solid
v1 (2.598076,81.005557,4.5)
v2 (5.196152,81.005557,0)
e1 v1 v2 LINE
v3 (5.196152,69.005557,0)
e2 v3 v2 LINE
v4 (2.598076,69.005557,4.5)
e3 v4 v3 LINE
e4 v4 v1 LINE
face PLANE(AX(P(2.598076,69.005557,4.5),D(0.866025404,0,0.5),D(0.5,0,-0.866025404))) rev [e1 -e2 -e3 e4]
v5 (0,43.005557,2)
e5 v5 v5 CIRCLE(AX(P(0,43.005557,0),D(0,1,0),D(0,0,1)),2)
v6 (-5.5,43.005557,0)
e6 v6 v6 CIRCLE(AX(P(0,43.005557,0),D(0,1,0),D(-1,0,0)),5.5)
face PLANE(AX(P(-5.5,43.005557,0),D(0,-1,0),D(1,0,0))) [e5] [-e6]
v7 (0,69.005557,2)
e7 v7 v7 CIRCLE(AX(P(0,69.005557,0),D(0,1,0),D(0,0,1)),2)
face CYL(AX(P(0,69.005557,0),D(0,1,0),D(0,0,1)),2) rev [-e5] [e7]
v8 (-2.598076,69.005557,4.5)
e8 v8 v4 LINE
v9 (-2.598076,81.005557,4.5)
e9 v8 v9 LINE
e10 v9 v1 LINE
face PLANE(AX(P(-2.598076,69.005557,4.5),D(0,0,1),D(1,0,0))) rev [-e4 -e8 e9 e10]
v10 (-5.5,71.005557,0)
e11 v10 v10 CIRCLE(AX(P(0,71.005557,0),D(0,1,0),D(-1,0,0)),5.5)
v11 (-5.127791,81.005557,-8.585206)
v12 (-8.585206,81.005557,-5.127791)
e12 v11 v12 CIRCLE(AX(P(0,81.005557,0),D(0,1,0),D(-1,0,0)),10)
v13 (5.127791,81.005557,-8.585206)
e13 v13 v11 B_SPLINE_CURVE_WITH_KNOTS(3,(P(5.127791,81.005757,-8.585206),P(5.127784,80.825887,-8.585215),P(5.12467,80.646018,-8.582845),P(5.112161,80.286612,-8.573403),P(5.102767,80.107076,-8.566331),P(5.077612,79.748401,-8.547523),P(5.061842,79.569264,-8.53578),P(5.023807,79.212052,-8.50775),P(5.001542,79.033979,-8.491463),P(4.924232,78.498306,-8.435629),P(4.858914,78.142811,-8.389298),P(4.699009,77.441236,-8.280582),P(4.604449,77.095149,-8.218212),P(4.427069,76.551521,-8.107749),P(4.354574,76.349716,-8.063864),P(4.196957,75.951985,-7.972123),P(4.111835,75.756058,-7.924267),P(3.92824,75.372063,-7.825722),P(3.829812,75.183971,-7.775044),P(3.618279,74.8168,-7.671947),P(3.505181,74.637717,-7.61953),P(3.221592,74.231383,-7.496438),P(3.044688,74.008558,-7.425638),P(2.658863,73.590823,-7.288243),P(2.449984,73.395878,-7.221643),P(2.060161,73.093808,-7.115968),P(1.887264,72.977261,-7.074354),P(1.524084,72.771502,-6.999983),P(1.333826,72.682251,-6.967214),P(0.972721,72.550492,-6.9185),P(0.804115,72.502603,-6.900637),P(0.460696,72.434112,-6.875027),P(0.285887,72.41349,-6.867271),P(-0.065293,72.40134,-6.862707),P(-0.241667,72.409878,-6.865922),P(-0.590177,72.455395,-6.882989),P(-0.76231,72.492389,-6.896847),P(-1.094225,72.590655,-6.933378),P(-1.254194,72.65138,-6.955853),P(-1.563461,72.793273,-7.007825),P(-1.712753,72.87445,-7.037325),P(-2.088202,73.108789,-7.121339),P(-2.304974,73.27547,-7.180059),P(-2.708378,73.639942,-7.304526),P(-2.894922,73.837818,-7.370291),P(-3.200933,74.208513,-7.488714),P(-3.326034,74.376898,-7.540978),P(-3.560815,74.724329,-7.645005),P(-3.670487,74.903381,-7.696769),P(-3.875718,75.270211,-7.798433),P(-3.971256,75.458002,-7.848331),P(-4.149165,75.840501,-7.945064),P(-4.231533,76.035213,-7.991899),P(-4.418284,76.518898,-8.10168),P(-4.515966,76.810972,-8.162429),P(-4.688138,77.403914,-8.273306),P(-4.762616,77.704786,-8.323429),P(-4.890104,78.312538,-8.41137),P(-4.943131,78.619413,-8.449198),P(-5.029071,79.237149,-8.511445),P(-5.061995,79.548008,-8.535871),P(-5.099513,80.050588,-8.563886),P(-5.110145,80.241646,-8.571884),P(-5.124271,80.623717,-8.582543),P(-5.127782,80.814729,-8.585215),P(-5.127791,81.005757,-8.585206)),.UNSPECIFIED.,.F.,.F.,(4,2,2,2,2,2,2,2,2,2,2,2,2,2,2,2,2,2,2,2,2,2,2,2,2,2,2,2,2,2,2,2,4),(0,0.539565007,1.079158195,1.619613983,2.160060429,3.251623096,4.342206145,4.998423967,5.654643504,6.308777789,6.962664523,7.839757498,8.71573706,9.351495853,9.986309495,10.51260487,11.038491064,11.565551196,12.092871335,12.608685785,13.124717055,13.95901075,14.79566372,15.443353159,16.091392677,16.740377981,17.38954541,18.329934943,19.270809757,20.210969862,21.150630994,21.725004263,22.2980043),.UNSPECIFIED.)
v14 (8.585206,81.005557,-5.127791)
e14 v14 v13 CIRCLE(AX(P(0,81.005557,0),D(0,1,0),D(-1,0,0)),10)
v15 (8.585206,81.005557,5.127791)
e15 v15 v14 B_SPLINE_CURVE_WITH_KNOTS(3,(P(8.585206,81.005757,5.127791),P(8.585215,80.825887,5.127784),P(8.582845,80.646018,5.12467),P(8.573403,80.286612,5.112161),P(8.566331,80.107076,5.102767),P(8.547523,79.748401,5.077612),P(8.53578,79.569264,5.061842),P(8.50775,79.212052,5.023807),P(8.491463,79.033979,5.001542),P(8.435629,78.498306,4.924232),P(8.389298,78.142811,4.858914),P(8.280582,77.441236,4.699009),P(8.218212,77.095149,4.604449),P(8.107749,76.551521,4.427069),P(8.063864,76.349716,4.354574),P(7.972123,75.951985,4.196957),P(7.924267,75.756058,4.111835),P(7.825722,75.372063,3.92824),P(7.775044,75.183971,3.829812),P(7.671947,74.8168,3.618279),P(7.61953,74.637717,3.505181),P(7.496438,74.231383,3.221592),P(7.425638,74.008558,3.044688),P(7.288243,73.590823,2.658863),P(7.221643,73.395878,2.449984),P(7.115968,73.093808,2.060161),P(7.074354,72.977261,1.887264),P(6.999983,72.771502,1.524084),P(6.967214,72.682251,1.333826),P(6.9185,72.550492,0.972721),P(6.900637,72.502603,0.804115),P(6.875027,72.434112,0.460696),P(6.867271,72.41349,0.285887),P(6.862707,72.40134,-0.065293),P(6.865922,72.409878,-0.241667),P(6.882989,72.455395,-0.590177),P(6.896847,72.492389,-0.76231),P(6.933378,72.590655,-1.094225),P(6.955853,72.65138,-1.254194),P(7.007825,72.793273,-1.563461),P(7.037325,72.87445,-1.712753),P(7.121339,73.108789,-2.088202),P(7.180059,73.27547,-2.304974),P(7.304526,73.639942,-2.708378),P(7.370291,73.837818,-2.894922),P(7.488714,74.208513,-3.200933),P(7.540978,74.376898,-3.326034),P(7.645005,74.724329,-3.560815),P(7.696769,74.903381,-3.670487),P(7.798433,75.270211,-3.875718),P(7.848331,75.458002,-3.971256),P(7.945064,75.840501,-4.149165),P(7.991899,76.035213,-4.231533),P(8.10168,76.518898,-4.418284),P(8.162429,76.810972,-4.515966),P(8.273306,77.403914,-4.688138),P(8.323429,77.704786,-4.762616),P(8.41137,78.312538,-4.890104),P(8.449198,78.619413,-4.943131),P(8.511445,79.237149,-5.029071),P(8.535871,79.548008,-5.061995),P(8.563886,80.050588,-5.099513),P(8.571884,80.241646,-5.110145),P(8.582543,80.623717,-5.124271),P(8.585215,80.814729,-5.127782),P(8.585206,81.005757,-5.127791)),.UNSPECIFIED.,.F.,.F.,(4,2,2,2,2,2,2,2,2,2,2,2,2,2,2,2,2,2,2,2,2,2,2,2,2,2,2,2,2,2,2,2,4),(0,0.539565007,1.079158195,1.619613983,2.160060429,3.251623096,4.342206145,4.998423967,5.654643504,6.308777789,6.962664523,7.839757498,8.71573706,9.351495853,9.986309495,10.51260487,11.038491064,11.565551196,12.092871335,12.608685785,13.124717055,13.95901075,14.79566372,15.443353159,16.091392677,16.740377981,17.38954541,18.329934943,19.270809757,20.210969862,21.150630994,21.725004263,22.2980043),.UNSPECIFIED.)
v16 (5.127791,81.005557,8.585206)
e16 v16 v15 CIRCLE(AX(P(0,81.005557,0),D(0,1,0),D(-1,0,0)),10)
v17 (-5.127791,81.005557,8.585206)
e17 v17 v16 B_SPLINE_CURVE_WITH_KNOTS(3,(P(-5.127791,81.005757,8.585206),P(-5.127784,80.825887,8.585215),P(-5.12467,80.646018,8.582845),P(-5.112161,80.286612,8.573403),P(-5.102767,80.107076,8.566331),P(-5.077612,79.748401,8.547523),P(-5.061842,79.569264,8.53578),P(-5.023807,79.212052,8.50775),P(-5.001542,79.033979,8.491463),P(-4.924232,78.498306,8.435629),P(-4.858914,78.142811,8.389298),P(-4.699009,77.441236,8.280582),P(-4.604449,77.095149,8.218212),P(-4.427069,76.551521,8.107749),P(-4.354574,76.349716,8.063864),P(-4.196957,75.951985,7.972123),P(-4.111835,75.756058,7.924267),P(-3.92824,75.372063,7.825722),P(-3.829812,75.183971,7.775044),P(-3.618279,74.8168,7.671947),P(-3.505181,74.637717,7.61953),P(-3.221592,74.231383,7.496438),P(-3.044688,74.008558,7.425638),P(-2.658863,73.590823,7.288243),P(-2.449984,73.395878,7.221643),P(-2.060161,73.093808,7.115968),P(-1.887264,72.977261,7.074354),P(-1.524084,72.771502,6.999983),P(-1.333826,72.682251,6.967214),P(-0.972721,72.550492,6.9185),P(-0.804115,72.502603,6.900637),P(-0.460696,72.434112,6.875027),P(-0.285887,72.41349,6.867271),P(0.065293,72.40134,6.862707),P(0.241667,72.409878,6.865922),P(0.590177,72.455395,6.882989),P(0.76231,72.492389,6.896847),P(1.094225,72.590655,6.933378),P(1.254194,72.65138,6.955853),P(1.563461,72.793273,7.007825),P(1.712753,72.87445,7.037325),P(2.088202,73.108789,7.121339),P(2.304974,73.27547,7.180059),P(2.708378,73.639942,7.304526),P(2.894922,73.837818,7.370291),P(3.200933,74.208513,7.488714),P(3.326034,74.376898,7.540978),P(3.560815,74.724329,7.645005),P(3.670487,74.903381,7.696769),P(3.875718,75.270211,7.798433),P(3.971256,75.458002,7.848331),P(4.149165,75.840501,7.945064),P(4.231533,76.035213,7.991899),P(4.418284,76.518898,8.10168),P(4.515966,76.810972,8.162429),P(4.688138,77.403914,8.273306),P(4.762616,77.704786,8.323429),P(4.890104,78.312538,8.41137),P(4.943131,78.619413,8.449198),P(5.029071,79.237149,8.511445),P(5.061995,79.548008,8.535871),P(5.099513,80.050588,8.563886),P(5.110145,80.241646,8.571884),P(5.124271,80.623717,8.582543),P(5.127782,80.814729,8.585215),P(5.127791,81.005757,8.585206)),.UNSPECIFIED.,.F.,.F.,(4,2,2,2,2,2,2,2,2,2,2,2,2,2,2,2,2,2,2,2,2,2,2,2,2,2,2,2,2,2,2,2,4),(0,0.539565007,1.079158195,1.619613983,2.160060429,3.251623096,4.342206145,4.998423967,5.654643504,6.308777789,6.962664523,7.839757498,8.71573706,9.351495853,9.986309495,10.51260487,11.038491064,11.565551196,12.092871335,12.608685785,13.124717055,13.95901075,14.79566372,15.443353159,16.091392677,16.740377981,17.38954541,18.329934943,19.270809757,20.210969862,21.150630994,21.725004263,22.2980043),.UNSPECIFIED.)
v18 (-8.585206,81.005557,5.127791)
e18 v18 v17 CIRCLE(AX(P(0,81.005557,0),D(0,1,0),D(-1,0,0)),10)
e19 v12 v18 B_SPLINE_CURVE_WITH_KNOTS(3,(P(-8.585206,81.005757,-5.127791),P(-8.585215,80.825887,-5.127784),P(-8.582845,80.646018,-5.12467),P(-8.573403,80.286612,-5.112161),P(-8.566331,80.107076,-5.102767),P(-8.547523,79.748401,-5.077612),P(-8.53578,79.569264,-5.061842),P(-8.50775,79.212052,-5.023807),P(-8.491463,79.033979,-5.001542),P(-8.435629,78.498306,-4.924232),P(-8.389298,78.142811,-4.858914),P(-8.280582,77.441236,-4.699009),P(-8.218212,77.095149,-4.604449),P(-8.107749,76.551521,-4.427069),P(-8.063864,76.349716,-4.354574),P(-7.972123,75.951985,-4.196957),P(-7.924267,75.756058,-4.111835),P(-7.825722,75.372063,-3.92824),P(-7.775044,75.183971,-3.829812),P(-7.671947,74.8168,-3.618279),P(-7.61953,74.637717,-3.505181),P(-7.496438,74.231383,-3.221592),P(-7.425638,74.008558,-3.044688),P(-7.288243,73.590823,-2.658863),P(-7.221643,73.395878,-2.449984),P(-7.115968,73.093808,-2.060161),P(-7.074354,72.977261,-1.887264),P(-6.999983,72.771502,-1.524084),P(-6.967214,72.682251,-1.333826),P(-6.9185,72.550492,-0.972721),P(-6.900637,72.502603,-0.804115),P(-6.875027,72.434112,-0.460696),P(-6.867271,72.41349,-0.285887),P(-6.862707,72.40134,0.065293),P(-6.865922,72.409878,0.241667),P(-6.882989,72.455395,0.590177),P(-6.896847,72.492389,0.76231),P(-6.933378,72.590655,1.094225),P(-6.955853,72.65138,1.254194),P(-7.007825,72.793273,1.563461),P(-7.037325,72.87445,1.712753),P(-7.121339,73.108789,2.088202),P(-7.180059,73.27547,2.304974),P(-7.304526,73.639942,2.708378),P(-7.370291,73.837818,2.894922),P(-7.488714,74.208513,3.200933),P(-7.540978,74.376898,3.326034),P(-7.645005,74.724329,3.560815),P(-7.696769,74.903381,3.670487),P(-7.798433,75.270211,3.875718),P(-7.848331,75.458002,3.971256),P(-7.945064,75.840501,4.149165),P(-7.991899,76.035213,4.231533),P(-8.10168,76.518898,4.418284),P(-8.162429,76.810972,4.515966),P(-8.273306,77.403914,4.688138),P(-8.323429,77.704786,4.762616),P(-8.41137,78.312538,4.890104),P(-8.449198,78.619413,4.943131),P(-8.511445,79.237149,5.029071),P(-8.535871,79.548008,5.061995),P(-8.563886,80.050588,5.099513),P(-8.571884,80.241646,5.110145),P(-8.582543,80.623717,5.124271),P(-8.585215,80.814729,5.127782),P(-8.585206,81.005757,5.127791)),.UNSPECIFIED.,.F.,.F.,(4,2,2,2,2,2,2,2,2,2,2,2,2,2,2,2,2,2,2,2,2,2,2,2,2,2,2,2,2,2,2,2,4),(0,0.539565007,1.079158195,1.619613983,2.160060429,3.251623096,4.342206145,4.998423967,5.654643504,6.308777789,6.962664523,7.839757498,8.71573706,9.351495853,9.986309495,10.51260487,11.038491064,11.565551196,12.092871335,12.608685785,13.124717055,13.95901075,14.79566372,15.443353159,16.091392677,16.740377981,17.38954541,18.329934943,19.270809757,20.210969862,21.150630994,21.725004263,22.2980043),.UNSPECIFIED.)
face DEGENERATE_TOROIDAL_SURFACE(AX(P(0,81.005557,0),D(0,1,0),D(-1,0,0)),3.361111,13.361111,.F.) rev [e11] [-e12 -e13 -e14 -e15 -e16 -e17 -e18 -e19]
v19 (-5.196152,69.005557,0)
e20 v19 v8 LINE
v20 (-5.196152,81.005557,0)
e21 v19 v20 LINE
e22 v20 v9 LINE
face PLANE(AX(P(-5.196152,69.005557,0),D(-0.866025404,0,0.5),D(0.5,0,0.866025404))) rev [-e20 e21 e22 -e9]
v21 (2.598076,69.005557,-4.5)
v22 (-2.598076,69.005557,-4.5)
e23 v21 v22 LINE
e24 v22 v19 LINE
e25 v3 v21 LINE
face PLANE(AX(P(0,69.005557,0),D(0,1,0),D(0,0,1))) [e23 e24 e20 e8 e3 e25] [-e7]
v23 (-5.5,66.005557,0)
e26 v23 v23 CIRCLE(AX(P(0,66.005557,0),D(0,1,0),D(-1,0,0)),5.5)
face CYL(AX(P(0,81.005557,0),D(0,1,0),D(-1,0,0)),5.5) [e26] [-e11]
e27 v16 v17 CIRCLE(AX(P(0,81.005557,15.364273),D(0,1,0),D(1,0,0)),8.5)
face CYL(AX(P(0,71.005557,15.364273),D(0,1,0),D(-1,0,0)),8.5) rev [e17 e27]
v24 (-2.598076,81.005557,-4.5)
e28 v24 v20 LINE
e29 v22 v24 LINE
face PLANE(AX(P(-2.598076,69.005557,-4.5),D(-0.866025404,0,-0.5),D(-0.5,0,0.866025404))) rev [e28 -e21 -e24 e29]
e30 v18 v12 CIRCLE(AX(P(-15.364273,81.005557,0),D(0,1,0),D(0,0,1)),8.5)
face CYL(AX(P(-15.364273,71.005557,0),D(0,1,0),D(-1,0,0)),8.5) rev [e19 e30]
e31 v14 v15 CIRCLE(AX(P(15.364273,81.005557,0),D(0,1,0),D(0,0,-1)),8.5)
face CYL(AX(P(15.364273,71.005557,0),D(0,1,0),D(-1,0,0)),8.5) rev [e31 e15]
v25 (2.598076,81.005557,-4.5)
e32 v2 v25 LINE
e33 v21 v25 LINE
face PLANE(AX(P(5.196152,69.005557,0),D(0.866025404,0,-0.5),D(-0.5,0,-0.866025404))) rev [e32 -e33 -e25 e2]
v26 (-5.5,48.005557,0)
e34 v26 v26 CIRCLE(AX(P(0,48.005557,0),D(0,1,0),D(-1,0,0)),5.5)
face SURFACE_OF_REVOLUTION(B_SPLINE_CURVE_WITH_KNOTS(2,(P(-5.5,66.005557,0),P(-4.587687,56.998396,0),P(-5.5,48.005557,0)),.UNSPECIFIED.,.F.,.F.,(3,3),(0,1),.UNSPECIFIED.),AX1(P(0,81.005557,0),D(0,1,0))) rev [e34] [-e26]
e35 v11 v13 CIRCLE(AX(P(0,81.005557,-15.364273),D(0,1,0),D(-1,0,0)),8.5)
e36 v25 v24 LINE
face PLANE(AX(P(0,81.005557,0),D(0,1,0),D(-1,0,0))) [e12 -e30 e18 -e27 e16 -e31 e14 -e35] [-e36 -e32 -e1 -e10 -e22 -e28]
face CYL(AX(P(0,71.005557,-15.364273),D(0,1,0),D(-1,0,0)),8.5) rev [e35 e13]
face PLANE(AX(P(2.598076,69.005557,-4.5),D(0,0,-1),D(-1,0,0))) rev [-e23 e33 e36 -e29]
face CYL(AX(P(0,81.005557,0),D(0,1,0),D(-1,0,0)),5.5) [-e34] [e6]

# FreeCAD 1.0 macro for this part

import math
import FreeCAD as App
import Part
import Sketcher
from FreeCAD import Vector
Q = App.Units.Quantity


def add_polygon(sketch, points):
    """Adds a closed chain of lines whose ends are joined by coincident constraints."""
    first, n = sketch.GeometryCount, len(points)
    for a, b in zip(points, points[1:] + points[:1]):
        sketch.addGeometry(Part.LineSegment(App.Vector(*a, 0), App.Vector(*b, 0)), False)
    for i in range(n):
        sketch.addConstraint(Sketcher.Constraint("Coincident", first + i, 2, first + (i + 1) % n, 1))

doc = App.newDocument("Part")
body = doc.addObject("PartDesign::Body", "Body")

# Sketch on XY plane
sketch1 = body.newObject("Sketcher::SketchObject", "Sketch")
sketch1.AttachmentSupport = (doc.getObject("XY_Plane"), [""])
sketch1.MapMode = "FlatFace"
sketch1.addGeometry([
    Part.LineSegment(Vector(0, 81.005557, 0), Vector(-10, 81.005557, 0)),  # 0
    Part.ArcOfCircle(Part.Circle(Vector(3.361111, 81.005557, 0), Vector(0, 0, 1), 13.361111), math.radians(180), math.radians(228.455491)),  # 1
    Part.LineSegment(Vector(-5.5, 71.005557, 0), Vector(-5.5, 66.005557, 0)),  # 2
    Part.BSplineCurve([Vector(-5.5, 66.005557, 0), Vector(-4.587687, 56.998396, 0), Vector(-5.5, 48.005557, 0)], [3, 3], [0, 1], False, 2, [1, 1, 1], False),  # 3
    Part.LineSegment(Vector(-5.5, 48.005557, 0), Vector(-5.5, 43.005557, 0)),  # 4
    Part.LineSegment(Vector(-5.5, 43.005557, 0), Vector(0, 43.005557, 0)),  # 5
    Part.LineSegment(Vector(0, 43.005557, 0), Vector(0, 81.005557, 0)),  # 6
], False)
sketch1.addConstraint([
    Sketcher.Constraint("Block", 3),
    Sketcher.Constraint("Coincident", 0, 2, 1, 1),
    Sketcher.Constraint("Coincident", 1, 2, 2, 1),
    Sketcher.Constraint("Coincident", 2, 2, 3, 1),
    Sketcher.Constraint("Coincident", 3, 2, 4, 1),
    Sketcher.Constraint("Coincident", 4, 2, 5, 1),
    Sketcher.Constraint("Coincident", 5, 2, 6, 1),
    Sketcher.Constraint("Coincident", 6, 2, 0, 1),
    Sketcher.Constraint("Horizontal", 0),
    Sketcher.Constraint("Vertical", 2),
    Sketcher.Constraint("Vertical", 4),
    Sketcher.Constraint("Horizontal", 5),
    Sketcher.Constraint("Vertical", 6),
    Sketcher.Constraint("PointOnObject", 5, 2, -2),
    Sketcher.Constraint("Horizontal", 1, 3, 0, 2),
    Sketcher.Constraint("Equal", 2, 4),
    Sketcher.Constraint("DistanceX", 0, 2, 0, 1, 10.0),
    Sketcher.Constraint("DistanceY", 2, 2, 2, 1, 5.0),
    Sketcher.Constraint("DistanceY", 6, 1, 6, 2, 38.0),
])
revolution = body.newObject("PartDesign::Revolution", "Revolution")
revolution.Profile = sketch1
revolution.ReferenceAxis = (sketch1, ["V_Axis"])
revolution.Angle = 360

# Sketch on XZ plane
sketch2 = body.newObject("Sketcher::SketchObject", "Sketch001")
sketch2.AttachmentSupport = (doc.getObject("XZ_Plane"), [""])
sketch2.MapMode = "FlatFace"
sketch2.AttachmentOffset = App.Placement(Vector(0, 0, -81.005557), App.Rotation())
sketch2.addGeometry(Part.Circle(Vector(0, -15, 0), Vector(0, 0, 1), 8), False)
sketch2.addConstraint([
    Sketcher.Constraint("PointOnObject", 0, 3, -2),
    Sketcher.Constraint("Diameter", 0, 17.0),
    Sketcher.Constraint("DistanceY", 0, 3, -1, 1, 15.364273),
])
pocket1 = body.newObject("PartDesign::Pocket", "Pocket")
pocket1.Profile = sketch2
pocket1.Length = 10
pocket1.Reversed = True
doc.recompute()

polarpattern = body.newObject("PartDesign::PolarPattern", "PolarPattern")
polarpattern.Originals = [pocket1]
polarpattern.Axis = (doc.getObject("Y_Axis"), [""])
polarpattern.Angle = 360
polarpattern.Occurrences = 4
body.Tip = polarpattern

# Sketch on XZ plane
sketch3 = body.newObject("Sketcher::SketchObject", "Sketch002")
sketch3.AttachmentSupport = (doc.getObject("XZ_Plane"), [""])
sketch3.MapMode = "FlatFace"
sketch3.AttachmentOffset = App.Placement(Vector(0, 0, -81.005557), App.Rotation())
add_polygon(sketch3, [(-3, -4), (-5, 0), (-3, 4), (3, 4), (5, 0), (3, -4)])  # lines 0-5
sketch3.addConstraint([
    Sketcher.Constraint("Horizontal", 2),
    Sketcher.Constraint("Horizontal", 5),
    Sketcher.Constraint("Symmetric", 0, 2, 3, 2, -1, 1),
    Sketcher.Constraint("Symmetric", 1, 2, 4, 2, -1, 1),
    Sketcher.Constraint("PointOnObject", 0, 2, -1),
    Sketcher.Constraint("Parallel", 0, 3),
    Sketcher.Constraint("Vertical", 2, 2, 4, 2),
    Sketcher.Constraint("Angle", 0, Q("120 deg")),
    Sketcher.Constraint("DistanceY", 4, 2, 2, 2, 9.0),
    Sketcher.Constraint("DistanceX", 2, 1, 2, 2, 5.196152),
])
pocket2 = body.newObject("PartDesign::Pocket", "Pocket001")
pocket2.Profile = sketch3
pocket2.Length = 12
pocket2.Reversed = True

# Sketch on XZ plane
sketch4 = body.newObject("Sketcher::SketchObject", "Sketch003")
sketch4.AttachmentSupport = (doc.getObject("XZ_Plane"), [""])
sketch4.MapMode = "FlatFace"
sketch4.AttachmentOffset = App.Placement(Vector(0, 0, -69.005557), App.Rotation())
sketch4.addGeometry(Part.Circle(Vector(0, 0, 0), Vector(0, 0, 1), 2), False)
sketch4.addConstraint([
    Sketcher.Constraint("Coincident", 0, 3, -1, 1),
    Sketcher.Constraint("Diameter", 0, 4.0),
])
doc.recompute()
hole = body.newObject("PartDesign::Hole", "Hole")
hole.Profile = sketch4
hole.ThreadType = "None"
hole.Diameter = 4
hole.DepthType = "ThroughAll"
hole.Reversed = True

doc.recompute()
